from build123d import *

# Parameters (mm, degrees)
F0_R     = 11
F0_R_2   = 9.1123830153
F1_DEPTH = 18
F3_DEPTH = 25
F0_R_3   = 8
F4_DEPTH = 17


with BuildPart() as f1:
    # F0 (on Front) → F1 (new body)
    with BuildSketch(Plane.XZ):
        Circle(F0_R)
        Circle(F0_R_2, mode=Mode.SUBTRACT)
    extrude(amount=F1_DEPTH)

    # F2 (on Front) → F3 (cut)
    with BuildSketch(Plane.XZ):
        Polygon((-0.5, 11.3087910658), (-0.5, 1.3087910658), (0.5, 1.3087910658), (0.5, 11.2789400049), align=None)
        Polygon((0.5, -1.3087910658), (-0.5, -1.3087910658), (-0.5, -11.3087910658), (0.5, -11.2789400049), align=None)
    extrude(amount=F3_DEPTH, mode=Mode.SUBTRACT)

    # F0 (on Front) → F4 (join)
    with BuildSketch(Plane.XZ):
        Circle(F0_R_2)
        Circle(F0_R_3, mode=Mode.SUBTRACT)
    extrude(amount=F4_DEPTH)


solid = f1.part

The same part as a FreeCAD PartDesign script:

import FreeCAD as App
import Part
import Sketcher
Q = App.Units.Quantity

doc = App.newDocument("Part")
params = doc.addObject("Spreadsheet::Sheet", "Params")
for row, (alias, value) in enumerate([
    ("sketch1_diameter", "22 mm"),
    ("pad1_length", "18 mm"),
    ("sketch2_width", "1 mm"),
    ("sketch2_height", "10 mm"),
    ("pocket1_length", "25 mm"),
    ("sketch3_diameter", "16 mm"),
    ("pad2_length", "17 mm"),
], start=1):
    params.set(f"A{row}", alias)
    params.set(f"B{row}", "=" + value)
    params.setAlias(f"B{row}", alias)

body = doc.addObject("PartDesign::Body", "Body")
body.AllowCompound = True

# Sketch on XZ plane
sketch1 = body.newObject("Sketcher::SketchObject", "Sketch")
sketch1.AttachmentSupport = (doc.getObject("XZ_Plane"), [""])
sketch1.MapMode = "FlatFace"
sketch1.addGeometry(Part.Circle(App.Vector(0, 0, 0), App.Vector(0, 0, 1), 11), False)
sketch1.addGeometry(Part.Circle(App.Vector(0, 0, 0), App.Vector(0, 0, 1), 9), False)
sketch1.addConstraint(Sketcher.Constraint("Coincident", 0, 3, -1, 1))
sketch1.addConstraint(Sketcher.Constraint("Coincident", 1, 3, -1, 1))
sketch1.addConstraint(Sketcher.Constraint("Diameter", 0, Q("22 mm")))
sketch1.addConstraint(Sketcher.Constraint("Diameter", 1, Q("18.224766 mm")))
sketch1.setExpression("Constraints[2]", "Params.sketch1_diameter")
pad1 = body.newObject("PartDesign::Pad", "Pad")
pad1.Profile = sketch1
pad1.setExpression("Length", "Params.pad1_length")

# Sketch on XZ plane
sketch2 = body.newObject("Sketcher::SketchObject", "Sketch001")
sketch2.AttachmentSupport = (doc.getObject("XZ_Plane"), [""])
sketch2.MapMode = "FlatFace"
sketch2.addGeometry(Part.LineSegment(App.Vector(-0.5, 11.3, 0), App.Vector(-0.5, 1.3, 0)), False)
sketch2.addGeometry(Part.LineSegment(App.Vector(-0.5, 1.3, 0), App.Vector(0.5, 1.3, 0)), False)
sketch2.addGeometry(Part.LineSegment(App.Vector(0.5, 1.3, 0), App.Vector(0.5, 11.3, 0)), False)
sketch2.addGeometry(Part.LineSegment(App.Vector(0.5, 11.3, 0), App.Vector(-0.5, 11.3, 0)), False)
sketch2.addGeometry(Part.LineSegment(App.Vector(0.5, -1.3, 0), App.Vector(-0.5, -1.3, 0)), False)
sketch2.addGeometry(Part.LineSegment(App.Vector(-0.5, -1.3, 0), App.Vector(-0.5, -11.3, 0)), False)
sketch2.addGeometry(Part.LineSegment(App.Vector(-0.5, -11.3, 0), App.Vector(0.5, -11.3, 0)), False)
sketch2.addGeometry(Part.LineSegment(App.Vector(0.5, -11.3, 0), App.Vector(0.5, -1.3, 0)), False)
sketch2.addConstraint(Sketcher.Constraint("Coincident", 0, 2, 1, 1))
sketch2.addConstraint(Sketcher.Constraint("Coincident", 1, 2, 2, 1))
sketch2.addConstraint(Sketcher.Constraint("Coincident", 2, 2, 3, 1))
sketch2.addConstraint(Sketcher.Constraint("Coincident", 3, 2, 0, 1))
sketch2.addConstraint(Sketcher.Constraint("Coincident", 4, 2, 5, 1))
sketch2.addConstraint(Sketcher.Constraint("Coincident", 5, 2, 6, 1))
sketch2.addConstraint(Sketcher.Constraint("Coincident", 6, 2, 7, 1))
sketch2.addConstraint(Sketcher.Constraint("Coincident", 7, 2, 4, 1))
sketch2.addConstraint(Sketcher.Constraint("Vertical", 0))
sketch2.addConstraint(Sketcher.Constraint("Horizontal", 1))
sketch2.addConstraint(Sketcher.Constraint("Vertical", 2))
sketch2.addConstraint(Sketcher.Constraint("Horizontal", 4))
sketch2.addConstraint(Sketcher.Constraint("Vertical", 5))
sketch2.addConstraint(Sketcher.Constraint("Vertical", 7))
sketch2.addConstraint(Sketcher.Constraint("Symmetric", 1, 2, 4, 2, -1, 1))
sketch2.addConstraint(Sketcher.Constraint("Symmetric", 3, 2, 5, 2, -1))
sketch2.addConstraint(Sketcher.Constraint("Symmetric", 2, 2, 6, 2, -1))
sketch2.addConstraint(Sketcher.Constraint("DistanceX", 1, 1, 1, 2, Q("1 mm")))
sketch2.addConstraint(Sketcher.Constraint("DistanceY", 0, 2, 0, 1, Q("10 mm")))
sketch2.addConstraint(Sketcher.Constraint("DistanceY", 2, 1, 2, 2, Q("9.970149 mm")))
sketch2.addConstraint(Sketcher.Constraint("DistanceY", -1, 1, 0, 2, Q("1.308791 mm")))
sketch2.setExpression("Constraints[17]", "Params.sketch2_width")
sketch2.setExpression("Constraints[18]", "Params.sketch2_height")
pocket1 = body.newObject("PartDesign::Pocket", "Pocket")
pocket1.Profile = sketch2
pocket1.setExpression("Length", "Params.pocket1_length")
pocket1.Reversed = True

# Sketch on XZ plane
sketch3 = body.newObject("Sketcher::SketchObject", "Sketch002")
sketch3.AttachmentSupport = (doc.getObject("XZ_Plane"), [""])
sketch3.MapMode = "FlatFace"
sketch3.addGeometry(Part.Circle(App.Vector(0, 0, 0), App.Vector(0, 0, 1), 9), False)
sketch3.addGeometry(Part.Circle(App.Vector(0, 0, 0), App.Vector(0, 0, 1), 8), False)
sketch3.addConstraint(Sketcher.Constraint("Coincident", 0, 3, -1, 1))
sketch3.addConstraint(Sketcher.Constraint("Coincident", 1, 3, -1, 1))
sketch3.addConstraint(Sketcher.Constraint("Diameter", 1, Q("16 mm")))
sketch3.addConstraint(Sketcher.Constraint("Diameter", 0, Q("18.224766 mm")))
sketch3.setExpression("Constraints[2]", "Params.sketch3_diameter")
pad2 = body.newObject("PartDesign::Pad", "Pad001")
pad2.Profile = sketch3
pad2.setExpression("Length", "Params.pad2_length")

doc.recompute()
